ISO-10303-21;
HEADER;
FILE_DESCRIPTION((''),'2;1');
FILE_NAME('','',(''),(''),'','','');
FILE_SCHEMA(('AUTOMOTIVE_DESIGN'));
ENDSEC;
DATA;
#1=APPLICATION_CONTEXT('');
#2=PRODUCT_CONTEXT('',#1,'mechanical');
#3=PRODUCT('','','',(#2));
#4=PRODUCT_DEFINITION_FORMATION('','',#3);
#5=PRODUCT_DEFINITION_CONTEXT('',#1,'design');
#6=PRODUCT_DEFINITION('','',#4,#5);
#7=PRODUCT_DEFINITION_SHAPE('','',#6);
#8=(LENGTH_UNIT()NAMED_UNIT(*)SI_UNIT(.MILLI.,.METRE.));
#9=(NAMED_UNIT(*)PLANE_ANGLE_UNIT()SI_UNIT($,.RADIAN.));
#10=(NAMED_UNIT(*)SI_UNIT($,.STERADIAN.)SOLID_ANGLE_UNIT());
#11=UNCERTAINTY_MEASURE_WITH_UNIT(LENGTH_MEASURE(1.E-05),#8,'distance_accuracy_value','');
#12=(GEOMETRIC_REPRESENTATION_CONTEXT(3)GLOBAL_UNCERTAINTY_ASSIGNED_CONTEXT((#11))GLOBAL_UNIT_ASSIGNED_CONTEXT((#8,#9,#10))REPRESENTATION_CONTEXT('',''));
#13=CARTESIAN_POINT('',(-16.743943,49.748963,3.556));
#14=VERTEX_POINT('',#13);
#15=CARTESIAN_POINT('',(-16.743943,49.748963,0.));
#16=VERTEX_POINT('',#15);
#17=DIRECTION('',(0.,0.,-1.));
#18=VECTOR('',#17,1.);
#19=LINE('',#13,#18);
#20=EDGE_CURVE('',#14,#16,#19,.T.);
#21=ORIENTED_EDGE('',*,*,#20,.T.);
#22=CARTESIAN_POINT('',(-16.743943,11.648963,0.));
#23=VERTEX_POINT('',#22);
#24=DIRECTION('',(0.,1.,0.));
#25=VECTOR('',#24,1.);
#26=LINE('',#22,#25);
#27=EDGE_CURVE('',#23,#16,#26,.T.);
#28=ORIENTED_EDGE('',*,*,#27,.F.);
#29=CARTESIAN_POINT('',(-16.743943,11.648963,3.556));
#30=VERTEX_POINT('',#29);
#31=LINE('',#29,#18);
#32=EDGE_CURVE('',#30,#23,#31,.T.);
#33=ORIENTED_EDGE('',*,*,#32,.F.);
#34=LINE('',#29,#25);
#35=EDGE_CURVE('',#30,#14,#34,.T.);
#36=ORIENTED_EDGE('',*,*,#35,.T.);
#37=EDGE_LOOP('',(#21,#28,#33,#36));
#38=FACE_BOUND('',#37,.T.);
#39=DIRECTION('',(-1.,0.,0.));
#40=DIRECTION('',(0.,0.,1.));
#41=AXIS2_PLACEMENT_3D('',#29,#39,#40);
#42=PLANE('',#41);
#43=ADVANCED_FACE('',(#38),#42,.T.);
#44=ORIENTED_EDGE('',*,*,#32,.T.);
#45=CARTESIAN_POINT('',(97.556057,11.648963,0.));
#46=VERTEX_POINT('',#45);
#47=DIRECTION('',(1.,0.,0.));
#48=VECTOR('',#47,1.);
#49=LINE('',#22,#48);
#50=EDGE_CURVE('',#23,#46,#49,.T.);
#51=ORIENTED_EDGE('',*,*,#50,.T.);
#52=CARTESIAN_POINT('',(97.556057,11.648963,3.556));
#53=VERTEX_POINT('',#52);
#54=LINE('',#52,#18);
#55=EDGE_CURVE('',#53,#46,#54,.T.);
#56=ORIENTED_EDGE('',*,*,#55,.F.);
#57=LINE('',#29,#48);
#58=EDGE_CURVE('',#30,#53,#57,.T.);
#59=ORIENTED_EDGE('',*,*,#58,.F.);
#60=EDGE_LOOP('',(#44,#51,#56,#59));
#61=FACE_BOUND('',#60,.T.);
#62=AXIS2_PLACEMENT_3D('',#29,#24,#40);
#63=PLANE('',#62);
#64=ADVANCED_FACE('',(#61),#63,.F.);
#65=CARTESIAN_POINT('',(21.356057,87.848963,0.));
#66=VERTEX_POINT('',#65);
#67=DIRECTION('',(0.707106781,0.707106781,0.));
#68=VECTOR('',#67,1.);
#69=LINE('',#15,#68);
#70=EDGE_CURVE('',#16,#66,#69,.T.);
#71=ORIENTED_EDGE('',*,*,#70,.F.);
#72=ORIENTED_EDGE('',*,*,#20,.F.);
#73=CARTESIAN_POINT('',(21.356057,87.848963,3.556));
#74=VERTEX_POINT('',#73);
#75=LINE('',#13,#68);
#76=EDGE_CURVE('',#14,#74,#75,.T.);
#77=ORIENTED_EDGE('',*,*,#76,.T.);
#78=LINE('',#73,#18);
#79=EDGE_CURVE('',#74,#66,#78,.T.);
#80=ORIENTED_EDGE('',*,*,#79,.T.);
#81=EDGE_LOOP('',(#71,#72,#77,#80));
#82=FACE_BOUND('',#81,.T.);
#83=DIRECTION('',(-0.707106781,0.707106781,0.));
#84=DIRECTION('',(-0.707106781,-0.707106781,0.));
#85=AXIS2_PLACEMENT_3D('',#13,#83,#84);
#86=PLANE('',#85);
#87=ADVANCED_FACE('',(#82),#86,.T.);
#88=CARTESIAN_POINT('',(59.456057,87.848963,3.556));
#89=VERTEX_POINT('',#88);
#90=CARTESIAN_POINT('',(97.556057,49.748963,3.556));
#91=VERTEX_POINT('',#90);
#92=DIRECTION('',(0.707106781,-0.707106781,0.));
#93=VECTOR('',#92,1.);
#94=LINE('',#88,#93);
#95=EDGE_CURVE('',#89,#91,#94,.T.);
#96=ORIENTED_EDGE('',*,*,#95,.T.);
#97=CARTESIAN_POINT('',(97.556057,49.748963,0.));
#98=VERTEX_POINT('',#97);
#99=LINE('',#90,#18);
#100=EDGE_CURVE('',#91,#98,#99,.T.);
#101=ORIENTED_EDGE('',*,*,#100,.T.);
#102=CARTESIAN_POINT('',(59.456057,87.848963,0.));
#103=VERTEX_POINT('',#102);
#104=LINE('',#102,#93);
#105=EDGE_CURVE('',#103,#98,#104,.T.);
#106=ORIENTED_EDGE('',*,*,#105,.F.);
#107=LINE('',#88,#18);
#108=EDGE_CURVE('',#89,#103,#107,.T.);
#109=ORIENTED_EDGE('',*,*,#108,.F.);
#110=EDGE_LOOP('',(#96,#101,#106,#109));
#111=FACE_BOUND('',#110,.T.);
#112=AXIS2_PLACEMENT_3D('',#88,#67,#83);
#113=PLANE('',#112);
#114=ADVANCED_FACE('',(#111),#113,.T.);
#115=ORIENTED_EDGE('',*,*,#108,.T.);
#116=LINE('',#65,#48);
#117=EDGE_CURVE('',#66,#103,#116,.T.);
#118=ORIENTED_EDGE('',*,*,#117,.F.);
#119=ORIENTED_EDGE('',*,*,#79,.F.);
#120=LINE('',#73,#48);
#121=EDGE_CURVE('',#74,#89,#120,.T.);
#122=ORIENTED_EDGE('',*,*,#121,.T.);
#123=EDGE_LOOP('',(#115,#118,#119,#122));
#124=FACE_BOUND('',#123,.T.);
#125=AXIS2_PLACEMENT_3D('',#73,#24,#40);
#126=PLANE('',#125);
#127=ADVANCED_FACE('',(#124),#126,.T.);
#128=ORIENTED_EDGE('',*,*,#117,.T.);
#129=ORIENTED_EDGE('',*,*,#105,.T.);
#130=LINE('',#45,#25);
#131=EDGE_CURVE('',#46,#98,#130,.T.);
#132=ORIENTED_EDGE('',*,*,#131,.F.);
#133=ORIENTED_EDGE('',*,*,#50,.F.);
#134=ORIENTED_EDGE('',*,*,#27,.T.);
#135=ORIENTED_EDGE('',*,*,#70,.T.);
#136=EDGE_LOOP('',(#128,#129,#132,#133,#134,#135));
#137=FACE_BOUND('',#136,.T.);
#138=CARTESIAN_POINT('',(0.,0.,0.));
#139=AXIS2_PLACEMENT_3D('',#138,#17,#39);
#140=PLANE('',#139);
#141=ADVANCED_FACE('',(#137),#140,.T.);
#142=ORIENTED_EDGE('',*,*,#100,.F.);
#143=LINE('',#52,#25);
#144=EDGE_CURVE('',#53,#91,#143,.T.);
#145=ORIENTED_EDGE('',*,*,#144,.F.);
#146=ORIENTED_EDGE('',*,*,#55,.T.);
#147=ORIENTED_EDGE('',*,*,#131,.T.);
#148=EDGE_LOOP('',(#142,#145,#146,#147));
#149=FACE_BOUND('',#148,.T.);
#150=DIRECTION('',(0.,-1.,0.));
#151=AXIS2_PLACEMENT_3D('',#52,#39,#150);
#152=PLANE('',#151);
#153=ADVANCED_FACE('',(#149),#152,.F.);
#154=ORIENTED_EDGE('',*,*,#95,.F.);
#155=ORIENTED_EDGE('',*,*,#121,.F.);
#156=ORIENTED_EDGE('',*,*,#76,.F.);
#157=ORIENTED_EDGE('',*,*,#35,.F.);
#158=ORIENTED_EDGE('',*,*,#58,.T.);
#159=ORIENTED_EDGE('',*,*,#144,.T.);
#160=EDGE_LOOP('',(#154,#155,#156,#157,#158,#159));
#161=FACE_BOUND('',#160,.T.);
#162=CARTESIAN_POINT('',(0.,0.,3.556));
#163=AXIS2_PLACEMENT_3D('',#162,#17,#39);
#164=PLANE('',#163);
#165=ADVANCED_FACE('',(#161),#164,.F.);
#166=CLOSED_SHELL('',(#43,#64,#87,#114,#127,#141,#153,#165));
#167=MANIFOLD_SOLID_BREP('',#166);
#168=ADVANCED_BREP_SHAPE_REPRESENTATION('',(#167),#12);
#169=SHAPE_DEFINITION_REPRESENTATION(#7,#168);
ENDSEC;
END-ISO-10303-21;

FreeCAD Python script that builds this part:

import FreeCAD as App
import Part
import Sketcher

V = App.Vector
Q = App.Units.Quantity


def add_polygon(sketch, points):
    """Adds a closed chain of lines whose ends are joined by coincident constraints."""
    first, n = sketch.GeometryCount, len(points)
    for a, b in zip(points, points[1:] + points[:1]):
        sketch.addGeometry(Part.LineSegment(App.Vector(*a, 0), App.Vector(*b, 0)), False)
    for i in range(n):
        sketch.addConstraint(Sketcher.Constraint("Coincident", first + i, 2, first + (i + 1) % n, 1))

doc = App.newDocument("Part")
body = doc.addObject("PartDesign::Body", "Body")

# Sketch on XY plane
sketch1 = body.newObject("Sketcher::SketchObject", "Sketch")
sketch1.AttachmentSupport = (doc.getObject("XY_Plane"), [""])
sketch1.MapMode = "FlatFace"
add_polygon(sketch1, [(21, 88), (-17, 50), (-17, 12), (98, 12), (98, 50), (59, 88)])  # lines 0-5
sketch1.addConstraint([
    Sketcher.Constraint("Vertical", 1),
    Sketcher.Constraint("Horizontal", 2),
    Sketcher.Constraint("Vertical", 3),
    Sketcher.Constraint("Horizontal", 5),
    Sketcher.Constraint("Perpendicular", 0, 4),
    Sketcher.Constraint("Horizontal", 0, 2, 3, 2),
    Sketcher.Constraint("Equal", 5, 1),
    Sketcher.Constraint("Equal", 0, 4),
    Sketcher.Constraint("DistanceX", 2, 1, 2, 2, Q("4.5 in")),
    Sketcher.Constraint("DistanceX", 5, 2, 5, 1, Q("1.5 in")),
    Sketcher.Constraint("DistanceX", 0, 2, -1, 1, 16.743943),
    Sketcher.Constraint("DistanceY", -1, 1, 0, 2, 49.748963),
])
pad1 = body.newObject("PartDesign::Pad", "Pad")
pad1.Profile = sketch1
pad1.Length = Q("0.14 in")

doc.recompute()
